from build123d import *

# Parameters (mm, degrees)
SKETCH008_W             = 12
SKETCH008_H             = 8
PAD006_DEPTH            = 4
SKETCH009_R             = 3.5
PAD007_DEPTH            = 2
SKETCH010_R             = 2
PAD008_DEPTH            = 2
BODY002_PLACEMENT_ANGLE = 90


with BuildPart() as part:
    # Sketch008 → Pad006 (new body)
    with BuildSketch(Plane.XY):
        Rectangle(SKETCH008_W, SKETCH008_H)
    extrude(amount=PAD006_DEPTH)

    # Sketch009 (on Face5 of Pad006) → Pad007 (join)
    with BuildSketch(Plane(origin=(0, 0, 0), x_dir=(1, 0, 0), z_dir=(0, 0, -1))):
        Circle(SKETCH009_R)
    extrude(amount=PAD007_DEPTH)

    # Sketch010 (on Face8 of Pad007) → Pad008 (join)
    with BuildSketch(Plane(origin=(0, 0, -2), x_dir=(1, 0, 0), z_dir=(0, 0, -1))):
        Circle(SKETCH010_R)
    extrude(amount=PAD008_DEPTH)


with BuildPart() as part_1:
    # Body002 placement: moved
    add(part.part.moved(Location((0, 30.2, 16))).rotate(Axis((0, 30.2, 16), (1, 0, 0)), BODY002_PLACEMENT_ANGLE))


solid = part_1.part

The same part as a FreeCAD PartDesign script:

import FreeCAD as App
import Part
import Sketcher

doc = App.newDocument("Part")
params = doc.addObject("Spreadsheet::Sheet", "Params")
for row, (alias, value) in enumerate([
    ("sketch1_width", "12 mm"),
    ("sketch1_height", "8 mm"),
    ("pad1_length", "4 mm"),
    ("sketch2_diameter", "7 mm"),
    ("pad2_length", "2 mm"),
    ("sketch3_diameter", "4 mm"),
    ("pad3_length", "2 mm"),
], start=1):
    params.set(f"A{row}", alias)
    params.set(f"B{row}", "=" + value)
    params.setAlias(f"B{row}", alias)

body = doc.addObject("PartDesign::Body", "Body")

# Sketch on XY plane
sketch1 = doc.addObject("Sketcher::SketchObject", "Sketch")
body.addObject(sketch1)
sketch1.AttachmentSupport = (doc.XY_Plane, [""])
sketch1.MapMode = "FlatFace"
sketch1.addGeometry([
    Part.LineSegment(App.Vector(-6, 4, 0), App.Vector(-6, -4, 0)),
    Part.LineSegment(App.Vector(-6, -4, 0), App.Vector(6, -4, 0)),
    Part.LineSegment(App.Vector(6, -4, 0), App.Vector(6, 4, 0)),
    Part.LineSegment(App.Vector(6, 4, 0), App.Vector(-6, 4, 0)),
], False)
sketch1.addConstraint([
    Sketcher.Constraint("Coincident", 0, 2, 1, 1),
    Sketcher.Constraint("Coincident", 1, 2, 2, 1),
    Sketcher.Constraint("Coincident", 2, 2, 3, 1),
    Sketcher.Constraint("Coincident", 3, 2, 0, 1),
    Sketcher.Constraint("Vertical", 0),
    Sketcher.Constraint("Horizontal", 1),
    Sketcher.Constraint("Vertical", 2),
    Sketcher.Constraint("Horizontal", 3),
    Sketcher.Constraint("Symmetric", 0, 2, 2, 2, -1, 1),
    Sketcher.Constraint("DistanceX", 1, 1, 1, 2, 12.0),
    Sketcher.Constraint("DistanceY", 0, 2, 0, 1, 8.0),
])
sketch1.setExpression("Constraints[9]", "Params.sketch1_width")
sketch1.setExpression("Constraints[10]", "Params.sketch1_height")
pad1 = doc.addObject("PartDesign::Pad", "Pad")
body.addObject(pad1)
pad1.Profile = sketch1
pad1.setExpression("Length", "Params.pad1_length")

# Sketch on XY plane
sketch2 = doc.addObject("Sketcher::SketchObject", "Sketch001")
body.addObject(sketch2)
sketch2.AttachmentSupport = (doc.XY_Plane, [""])
sketch2.MapMode = "FlatFace"
sketch2.addGeometry(Part.Circle(App.Vector(0, 0, 0), App.Vector(0, 0, 1), 3.5), False)
sketch2.addConstraint([
    Sketcher.Constraint("Coincident", 0, 3, -1, 1),
    Sketcher.Constraint("Diameter", 0, 7.0),
])
sketch2.setExpression("Constraints[1]", "Params.sketch2_diameter")
pad2 = doc.addObject("PartDesign::Pad", "Pad001")
body.addObject(pad2)
pad2.Profile = sketch2
pad2.setExpression("Length", "Params.pad2_length")
pad2.Reversed = True

# Sketch on XY plane
sketch3 = doc.addObject("Sketcher::SketchObject", "Sketch002")
body.addObject(sketch3)
sketch3.AttachmentSupport = (doc.XY_Plane, [""])
sketch3.MapMode = "FlatFace"
sketch3.AttachmentOffset = App.Placement(App.Vector(0, 0, -2), App.Rotation())
sketch3.addGeometry(Part.Circle(App.Vector(0, 0, 0), App.Vector(0, 0, 1), 2), False)
sketch3.addConstraint([
    Sketcher.Constraint("Coincident", 0, 3, -1, 1),
    Sketcher.Constraint("Diameter", 0, 4.0),
])
sketch3.setExpression("Constraints[1]", "Params.sketch3_diameter")
pad3 = doc.addObject("PartDesign::Pad", "Pad002")
body.addObject(pad3)
pad3.Profile = sketch3
pad3.setExpression("Length", "Params.pad3_length")
pad3.Reversed = True
body2 = doc.addObject("PartDesign::Body", "Body001")
doc.recompute()

body.Placement = App.Placement(App.Vector(0, 30.2, 16), App.Rotation(App.Vector(1, 0, 0), 90))
boolean = doc.addObject("PartDesign::Boolean", "Boolean")
body2.addObject(boolean)
boolean.Type = "Fuse"
boolean.addObjects([body])

doc.recompute()
